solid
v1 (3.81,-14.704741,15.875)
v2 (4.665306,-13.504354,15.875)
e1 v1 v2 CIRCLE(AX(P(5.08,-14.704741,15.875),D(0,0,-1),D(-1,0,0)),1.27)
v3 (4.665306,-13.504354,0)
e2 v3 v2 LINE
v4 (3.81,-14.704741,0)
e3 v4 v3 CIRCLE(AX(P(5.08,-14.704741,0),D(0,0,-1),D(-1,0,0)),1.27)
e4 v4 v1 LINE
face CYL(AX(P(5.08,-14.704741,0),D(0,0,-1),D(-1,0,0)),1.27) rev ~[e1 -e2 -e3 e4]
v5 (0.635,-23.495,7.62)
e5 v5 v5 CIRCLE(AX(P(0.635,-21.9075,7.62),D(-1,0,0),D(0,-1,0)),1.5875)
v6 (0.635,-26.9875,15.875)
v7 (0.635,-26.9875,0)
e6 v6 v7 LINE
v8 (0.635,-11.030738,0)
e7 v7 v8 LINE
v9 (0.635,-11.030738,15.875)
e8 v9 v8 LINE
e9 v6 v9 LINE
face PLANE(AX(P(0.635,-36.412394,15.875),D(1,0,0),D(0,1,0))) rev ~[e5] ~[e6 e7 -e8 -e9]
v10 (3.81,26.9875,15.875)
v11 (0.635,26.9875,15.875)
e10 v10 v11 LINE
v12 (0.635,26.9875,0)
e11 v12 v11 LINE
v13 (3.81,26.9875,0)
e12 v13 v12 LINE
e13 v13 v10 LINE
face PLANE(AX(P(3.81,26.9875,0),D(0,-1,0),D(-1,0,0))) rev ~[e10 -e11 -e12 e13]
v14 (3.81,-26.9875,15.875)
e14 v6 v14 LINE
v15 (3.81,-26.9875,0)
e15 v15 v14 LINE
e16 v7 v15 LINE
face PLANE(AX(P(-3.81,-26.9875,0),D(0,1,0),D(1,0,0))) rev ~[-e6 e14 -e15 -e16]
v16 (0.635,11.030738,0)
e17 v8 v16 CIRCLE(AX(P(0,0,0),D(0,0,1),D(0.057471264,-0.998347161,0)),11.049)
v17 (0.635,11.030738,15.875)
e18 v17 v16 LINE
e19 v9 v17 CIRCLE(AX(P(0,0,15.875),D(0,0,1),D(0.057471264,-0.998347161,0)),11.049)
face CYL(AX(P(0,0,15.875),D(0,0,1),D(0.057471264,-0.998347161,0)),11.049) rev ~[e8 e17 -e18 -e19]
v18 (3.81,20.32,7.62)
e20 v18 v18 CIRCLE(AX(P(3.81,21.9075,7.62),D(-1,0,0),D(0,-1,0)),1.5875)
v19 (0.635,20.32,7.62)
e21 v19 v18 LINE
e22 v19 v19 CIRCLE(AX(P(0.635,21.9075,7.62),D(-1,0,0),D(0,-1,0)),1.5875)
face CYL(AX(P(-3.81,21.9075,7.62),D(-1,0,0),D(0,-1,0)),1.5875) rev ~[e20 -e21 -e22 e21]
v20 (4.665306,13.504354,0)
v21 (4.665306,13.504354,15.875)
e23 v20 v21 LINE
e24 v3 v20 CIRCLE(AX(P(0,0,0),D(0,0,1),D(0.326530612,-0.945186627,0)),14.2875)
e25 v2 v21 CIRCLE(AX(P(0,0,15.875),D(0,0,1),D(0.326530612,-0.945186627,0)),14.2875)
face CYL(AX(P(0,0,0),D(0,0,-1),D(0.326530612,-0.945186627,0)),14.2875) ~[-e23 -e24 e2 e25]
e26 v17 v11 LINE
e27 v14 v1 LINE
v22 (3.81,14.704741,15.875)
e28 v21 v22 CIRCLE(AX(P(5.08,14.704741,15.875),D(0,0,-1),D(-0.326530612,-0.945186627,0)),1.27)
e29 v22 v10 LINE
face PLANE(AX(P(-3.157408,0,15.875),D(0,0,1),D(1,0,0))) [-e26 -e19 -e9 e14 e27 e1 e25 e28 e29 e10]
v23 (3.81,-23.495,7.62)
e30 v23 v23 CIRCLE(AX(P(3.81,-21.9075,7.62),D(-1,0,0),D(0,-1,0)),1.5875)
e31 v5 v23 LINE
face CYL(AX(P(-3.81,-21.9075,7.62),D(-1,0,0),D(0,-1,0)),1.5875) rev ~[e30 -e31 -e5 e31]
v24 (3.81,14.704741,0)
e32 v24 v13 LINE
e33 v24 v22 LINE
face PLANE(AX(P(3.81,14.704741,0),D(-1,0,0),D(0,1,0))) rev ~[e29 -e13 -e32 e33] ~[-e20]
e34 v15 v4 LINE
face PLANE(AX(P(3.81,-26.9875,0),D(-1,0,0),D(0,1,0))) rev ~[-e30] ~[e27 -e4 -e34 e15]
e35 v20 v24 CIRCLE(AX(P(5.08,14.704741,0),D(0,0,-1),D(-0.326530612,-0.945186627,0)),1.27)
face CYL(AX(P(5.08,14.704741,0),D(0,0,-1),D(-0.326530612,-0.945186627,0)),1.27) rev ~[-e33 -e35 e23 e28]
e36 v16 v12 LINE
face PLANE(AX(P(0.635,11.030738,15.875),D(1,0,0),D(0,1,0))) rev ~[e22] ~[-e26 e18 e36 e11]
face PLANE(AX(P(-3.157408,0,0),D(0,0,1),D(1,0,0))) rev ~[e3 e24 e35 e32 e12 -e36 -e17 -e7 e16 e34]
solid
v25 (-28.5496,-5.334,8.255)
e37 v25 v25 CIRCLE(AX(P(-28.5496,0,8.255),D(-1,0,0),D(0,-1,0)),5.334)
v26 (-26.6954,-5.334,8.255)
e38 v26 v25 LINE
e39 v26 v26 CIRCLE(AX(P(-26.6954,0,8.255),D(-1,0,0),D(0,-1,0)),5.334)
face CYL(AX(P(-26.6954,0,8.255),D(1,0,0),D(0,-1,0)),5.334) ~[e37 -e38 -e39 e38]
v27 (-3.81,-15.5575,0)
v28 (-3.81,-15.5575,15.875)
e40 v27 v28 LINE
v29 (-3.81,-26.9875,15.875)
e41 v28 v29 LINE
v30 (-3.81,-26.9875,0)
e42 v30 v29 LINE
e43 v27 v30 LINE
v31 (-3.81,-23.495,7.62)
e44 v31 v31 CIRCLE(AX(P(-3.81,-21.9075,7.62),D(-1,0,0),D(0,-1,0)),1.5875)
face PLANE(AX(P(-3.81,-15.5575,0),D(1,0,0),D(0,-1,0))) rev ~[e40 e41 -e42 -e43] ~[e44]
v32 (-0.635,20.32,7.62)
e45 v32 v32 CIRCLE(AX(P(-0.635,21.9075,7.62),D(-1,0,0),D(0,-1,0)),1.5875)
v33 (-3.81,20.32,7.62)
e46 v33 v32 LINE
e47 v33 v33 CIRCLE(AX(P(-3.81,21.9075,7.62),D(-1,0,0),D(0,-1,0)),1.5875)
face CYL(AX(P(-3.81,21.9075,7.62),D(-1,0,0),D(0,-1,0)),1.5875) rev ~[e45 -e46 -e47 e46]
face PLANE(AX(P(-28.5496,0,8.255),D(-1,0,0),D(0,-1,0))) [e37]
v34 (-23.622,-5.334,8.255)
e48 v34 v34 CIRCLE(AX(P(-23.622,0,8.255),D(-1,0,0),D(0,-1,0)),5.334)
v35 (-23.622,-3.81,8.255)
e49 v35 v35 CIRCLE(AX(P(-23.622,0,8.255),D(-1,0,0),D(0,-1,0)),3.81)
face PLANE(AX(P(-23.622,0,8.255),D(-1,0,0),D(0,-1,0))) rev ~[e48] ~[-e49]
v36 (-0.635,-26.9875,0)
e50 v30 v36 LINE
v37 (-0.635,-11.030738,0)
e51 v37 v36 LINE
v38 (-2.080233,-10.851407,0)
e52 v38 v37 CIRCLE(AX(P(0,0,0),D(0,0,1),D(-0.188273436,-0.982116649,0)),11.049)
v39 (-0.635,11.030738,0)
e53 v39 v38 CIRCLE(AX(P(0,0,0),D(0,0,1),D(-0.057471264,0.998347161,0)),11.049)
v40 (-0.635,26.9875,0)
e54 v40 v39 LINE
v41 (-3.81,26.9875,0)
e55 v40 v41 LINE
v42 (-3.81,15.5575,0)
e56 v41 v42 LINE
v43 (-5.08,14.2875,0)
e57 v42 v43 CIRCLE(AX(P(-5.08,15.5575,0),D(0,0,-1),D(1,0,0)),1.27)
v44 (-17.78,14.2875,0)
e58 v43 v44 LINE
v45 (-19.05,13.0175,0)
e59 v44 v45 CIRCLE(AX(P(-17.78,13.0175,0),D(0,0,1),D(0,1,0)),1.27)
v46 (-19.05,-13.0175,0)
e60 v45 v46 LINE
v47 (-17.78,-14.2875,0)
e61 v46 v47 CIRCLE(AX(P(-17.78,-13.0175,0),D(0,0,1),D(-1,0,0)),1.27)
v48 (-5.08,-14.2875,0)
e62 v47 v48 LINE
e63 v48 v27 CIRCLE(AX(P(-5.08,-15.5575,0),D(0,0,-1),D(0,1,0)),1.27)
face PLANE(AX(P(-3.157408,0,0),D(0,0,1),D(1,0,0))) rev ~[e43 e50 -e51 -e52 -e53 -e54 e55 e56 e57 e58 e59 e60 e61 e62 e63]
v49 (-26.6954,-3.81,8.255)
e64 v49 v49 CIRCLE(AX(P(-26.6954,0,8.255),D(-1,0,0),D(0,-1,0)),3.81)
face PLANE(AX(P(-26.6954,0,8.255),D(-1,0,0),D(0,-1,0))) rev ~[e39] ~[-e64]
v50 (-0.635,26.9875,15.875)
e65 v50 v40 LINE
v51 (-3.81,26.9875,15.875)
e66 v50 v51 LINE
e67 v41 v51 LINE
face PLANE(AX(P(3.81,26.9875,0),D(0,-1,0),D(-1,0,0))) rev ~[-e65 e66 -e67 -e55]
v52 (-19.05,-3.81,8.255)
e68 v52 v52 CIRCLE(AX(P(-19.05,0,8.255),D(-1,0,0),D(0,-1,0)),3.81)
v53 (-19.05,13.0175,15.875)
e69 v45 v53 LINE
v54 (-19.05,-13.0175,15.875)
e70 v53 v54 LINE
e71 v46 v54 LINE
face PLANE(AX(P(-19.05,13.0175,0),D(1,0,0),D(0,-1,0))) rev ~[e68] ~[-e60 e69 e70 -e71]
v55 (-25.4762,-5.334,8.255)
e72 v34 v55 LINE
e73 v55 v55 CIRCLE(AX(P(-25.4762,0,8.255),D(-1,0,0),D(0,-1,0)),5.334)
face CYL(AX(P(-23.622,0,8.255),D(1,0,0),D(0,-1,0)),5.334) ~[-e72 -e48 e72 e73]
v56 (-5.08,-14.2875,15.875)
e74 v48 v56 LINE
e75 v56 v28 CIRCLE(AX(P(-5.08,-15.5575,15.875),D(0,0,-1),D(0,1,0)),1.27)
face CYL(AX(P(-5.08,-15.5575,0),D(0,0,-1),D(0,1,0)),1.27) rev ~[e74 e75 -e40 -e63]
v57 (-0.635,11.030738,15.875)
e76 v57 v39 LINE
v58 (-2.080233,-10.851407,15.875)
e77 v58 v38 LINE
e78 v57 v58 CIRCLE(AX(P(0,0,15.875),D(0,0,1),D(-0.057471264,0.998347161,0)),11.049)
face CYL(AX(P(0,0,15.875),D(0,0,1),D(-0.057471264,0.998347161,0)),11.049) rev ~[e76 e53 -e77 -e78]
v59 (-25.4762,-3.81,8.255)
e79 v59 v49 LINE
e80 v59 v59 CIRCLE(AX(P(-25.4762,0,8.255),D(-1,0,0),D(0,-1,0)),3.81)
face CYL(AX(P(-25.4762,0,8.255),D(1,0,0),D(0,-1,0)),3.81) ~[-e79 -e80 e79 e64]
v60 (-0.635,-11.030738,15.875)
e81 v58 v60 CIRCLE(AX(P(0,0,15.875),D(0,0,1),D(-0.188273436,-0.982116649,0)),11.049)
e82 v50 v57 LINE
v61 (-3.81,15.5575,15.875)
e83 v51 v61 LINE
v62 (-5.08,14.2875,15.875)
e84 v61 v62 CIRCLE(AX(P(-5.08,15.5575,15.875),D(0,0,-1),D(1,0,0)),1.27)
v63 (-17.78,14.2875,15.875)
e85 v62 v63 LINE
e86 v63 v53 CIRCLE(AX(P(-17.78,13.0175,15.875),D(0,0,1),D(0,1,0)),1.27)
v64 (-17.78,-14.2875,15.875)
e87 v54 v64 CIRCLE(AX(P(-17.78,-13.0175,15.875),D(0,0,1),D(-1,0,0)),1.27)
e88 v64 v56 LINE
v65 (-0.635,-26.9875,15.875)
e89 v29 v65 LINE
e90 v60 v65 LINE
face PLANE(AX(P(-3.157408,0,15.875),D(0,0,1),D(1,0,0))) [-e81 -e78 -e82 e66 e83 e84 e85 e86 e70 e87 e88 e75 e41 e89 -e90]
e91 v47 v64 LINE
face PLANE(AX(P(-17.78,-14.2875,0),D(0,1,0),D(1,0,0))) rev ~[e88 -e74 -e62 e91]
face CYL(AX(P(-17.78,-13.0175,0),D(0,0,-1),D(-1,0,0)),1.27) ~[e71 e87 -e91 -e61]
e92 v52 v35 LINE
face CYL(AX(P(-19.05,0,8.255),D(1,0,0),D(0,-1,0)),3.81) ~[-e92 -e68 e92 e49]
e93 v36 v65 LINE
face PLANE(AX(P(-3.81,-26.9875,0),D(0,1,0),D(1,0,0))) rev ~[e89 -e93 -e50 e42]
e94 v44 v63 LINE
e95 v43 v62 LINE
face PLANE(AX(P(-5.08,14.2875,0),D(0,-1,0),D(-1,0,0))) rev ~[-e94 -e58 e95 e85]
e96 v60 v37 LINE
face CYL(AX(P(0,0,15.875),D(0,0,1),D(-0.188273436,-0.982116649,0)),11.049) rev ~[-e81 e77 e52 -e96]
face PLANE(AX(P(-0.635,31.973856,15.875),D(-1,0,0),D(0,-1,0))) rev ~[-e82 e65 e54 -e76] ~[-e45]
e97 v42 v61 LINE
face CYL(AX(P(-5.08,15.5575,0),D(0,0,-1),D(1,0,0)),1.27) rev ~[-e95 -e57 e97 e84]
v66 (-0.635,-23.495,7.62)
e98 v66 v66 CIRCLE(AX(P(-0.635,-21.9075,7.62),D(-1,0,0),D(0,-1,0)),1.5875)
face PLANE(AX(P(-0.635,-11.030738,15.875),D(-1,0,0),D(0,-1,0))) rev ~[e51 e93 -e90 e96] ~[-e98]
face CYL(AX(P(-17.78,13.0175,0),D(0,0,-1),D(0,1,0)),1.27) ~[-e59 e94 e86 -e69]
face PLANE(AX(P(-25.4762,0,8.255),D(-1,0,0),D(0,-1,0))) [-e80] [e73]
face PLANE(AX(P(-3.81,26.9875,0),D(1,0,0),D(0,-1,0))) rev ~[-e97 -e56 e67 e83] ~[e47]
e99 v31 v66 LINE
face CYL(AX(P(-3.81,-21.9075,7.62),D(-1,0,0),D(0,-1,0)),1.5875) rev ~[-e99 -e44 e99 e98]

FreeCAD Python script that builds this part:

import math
import FreeCAD as App
import Part
import Sketcher
from FreeCAD import Vector
Q = App.Units.Quantity

doc = App.newDocument("Part")
body = doc.addObject("PartDesign::Body", "Body")
body.AllowCompound = True

sketch1 = body.newObject("Sketcher::SketchObject", "Sketch")
sketch1.AttachmentSupport = (doc.getObject("XY_Plane"), [""])
sketch1.MapMode = "FlatFace"
sketch1.addGeometry([
    Part.ArcOfCircle(Part.Circle(Vector(-5.1, 15.6, 0), Vector(0, 0, 1), 1.3), math.radians(-90), math.radians(0)),
    Part.LineSegment(Vector(-5.1, 14.3, 0), Vector(-17.8, 14.3, 0)),
    Part.ArcOfCircle(Part.Circle(Vector(-17.8, 13, 0), Vector(0, 0, 1), 1.3), math.radians(90), math.radians(180)),
    Part.LineSegment(Vector(-19.1, 13, 0), Vector(-19.1, -13, 0)),
    Part.ArcOfCircle(Part.Circle(Vector(-17.8, -13, 0), Vector(0, 0, 1), 1.3), math.radians(180), math.radians(270)),
    Part.LineSegment(Vector(-17.8, -14.3, 0), Vector(-5.1, -14.3, 0)),
    Part.ArcOfCircle(Part.Circle(Vector(-5.1, -15.6, 0), Vector(0, 0, 1), 1.3), math.radians(0), math.radians(90)),
    Part.LineSegment(Vector(-3.8, -15.6, 0), Vector(-3.8, -27, 0)),
    Part.LineSegment(Vector(-3.8, -27, 0), Vector(3.8, -27, 0)),
    Part.LineSegment(Vector(3.8, -27, 0), Vector(3.8, -14.7, 0)),
    Part.ArcOfCircle(Part.Circle(Vector(5.1, -14.7, 0), Vector(0, 0, 1), 1.3), math.radians(109), math.radians(180)),
    Part.ArcOfCircle(Part.Circle(Vector(0, 0, 0), Vector(0, 0, 1), 14.3), math.radians(-71), math.radians(71)),
    Part.ArcOfCircle(Part.Circle(Vector(5.1, 14.7, 0), Vector(0, 0, 1), 1.3), math.radians(180), math.radians(251)),
    Part.LineSegment(Vector(3.8, 14.7, 0), Vector(3.8, 27, 0)),
    Part.LineSegment(Vector(3.8, 27, 0), Vector(-3.8, 27, 0)),
    Part.LineSegment(Vector(-3.8, 27, 0), Vector(-3.8, 15.6, 0)),
], False)
sketch1.addConstraint([
    Sketcher.Constraint("Tangent", 0, 1, 1, 1),
    Sketcher.Constraint("Tangent", 1, 2, 2, 1),
    Sketcher.Constraint("Tangent", 2, 2, 3, 1),
    Sketcher.Constraint("Tangent", 3, 2, 4, 1),
    Sketcher.Constraint("Tangent", 4, 2, 5, 1),
    Sketcher.Constraint("Tangent", 5, 2, 6, 2),
    Sketcher.Constraint("Tangent", 6, 1, 7, 1),
    Sketcher.Constraint("Coincident", 7, 2, 8, 1),
    Sketcher.Constraint("Coincident", 8, 2, 9, 1),
    Sketcher.Constraint("Tangent", 9, 2, 10, 2),
    Sketcher.Constraint("Tangent", 10, 1, 11, 1),
    Sketcher.Constraint("Tangent", 11, 2, 12, 2),
    Sketcher.Constraint("Tangent", 12, 1, 13, 1),
    Sketcher.Constraint("Coincident", 13, 2, 14, 1),
    Sketcher.Constraint("Coincident", 14, 2, 15, 1),
    Sketcher.Constraint("Tangent", 15, 2, 0, 2),
    Sketcher.Constraint("Horizontal", 1),
    Sketcher.Constraint("Vertical", 3),
    Sketcher.Constraint("Horizontal", 5),
    Sketcher.Constraint("Vertical", 7),
    Sketcher.Constraint("Horizontal", 8),
    Sketcher.Constraint("Vertical", 9),
    Sketcher.Constraint("Vertical", 13),
    Sketcher.Constraint("Horizontal", 14),
    Sketcher.Constraint("Vertical", 15),
    Sketcher.Constraint("Coincident", 11, 3, -1, 1),
    Sketcher.Constraint("Equal", 0, 2),
    Sketcher.Constraint("Equal", 2, 4),
    Sketcher.Constraint("Equal", 4, 6),
    Sketcher.Constraint("Equal", 6, 10),
    Sketcher.Constraint("Equal", 10, 12),
    Sketcher.Constraint("Symmetric", 7, 2, 13, 2, -1, 1),
    Sketcher.Constraint("Symmetric", 0, 3, 6, 3, -1),
    Sketcher.Constraint("Vertical", 10, 3, 12, 3),
    Sketcher.Constraint("Radius", 0, Q("0.05 in")),
    Sketcher.Constraint("DistanceX", 1, 2, 1, 1, Q("0.5 in")),
    Sketcher.Constraint("DistanceX", 8, 1, 8, 2, Q("0.3 in")),
    Sketcher.Constraint("Radius", 11, Q("0.5625 in")),
    Sketcher.Constraint("DistanceY", 7, 2, 7, 1, Q("0.45 in")),
    Sketcher.Constraint("DistanceY", 3, 2, 3, 1, Q("1.025 in")),
])
pad1 = body.newObject("PartDesign::Pad", "Pad")
pad1.Profile = sketch1
pad1.Length = Q("0.625 in")

sketch2 = body.newObject("Sketcher::SketchObject", "Sketch001")
sketch2.AttachmentSupport = (doc.getObject("YZ_Plane"), [""])
sketch2.MapMode = "FlatFace"
sketch2.AttachmentOffset = App.Placement(Vector(0, 0, -0.75 * 25.4), App.Rotation())
sketch2.addGeometry(Part.Circle(Vector(0, 8.3, 0), Vector(0, 0, 1), 3.8), False)
sketch2.addConstraint([
    Sketcher.Constraint("PointOnObject", 0, 3, -2),
    Sketcher.Constraint("Diameter", 0, Q("0.3 in")),
    Sketcher.Constraint("DistanceY", -1, 1, 0, 3, Q("0.325 in")),
])
pad2 = body.newObject("PartDesign::Pad", "Pad001")
pad2.Profile = sketch2
pad2.Length = Q("0.18 in")
pad2.Reversed = True

sketch3 = body.newObject("Sketcher::SketchObject", "Sketch002")
sketch3.AttachmentSupport = (doc.getObject("YZ_Plane"), [""])
sketch3.MapMode = "FlatFace"
sketch3.AttachmentOffset = App.Placement(Vector(0, 0, -0.93 * 25.4), App.Rotation())
sketch3.addGeometry(Part.Circle(Vector(0, 8, 0), Vector(0, 0, 1), 5), False)
sketch3.addConstraint([
    Sketcher.Constraint("PointOnObject", 0, 3, -2),
    Sketcher.Constraint("Diameter", 0, Q("0.42 in")),
    Sketcher.Constraint("DistanceY", -1, 1, 0, 3, Q("0.325 in")),
])
pad3 = body.newObject("PartDesign::Pad", "Pad002")
pad3.Profile = sketch3
pad3.Length = Q("0.073 in")
pad3.Reversed = True

sketch4 = body.newObject("Sketcher::SketchObject", "Sketch003")
sketch4.AttachmentSupport = (doc.getObject("YZ_Plane"), [""])
sketch4.MapMode = "FlatFace"
sketch4.AttachmentOffset = App.Placement(Vector(0, 0, -1.003 * 25.4), App.Rotation())
sketch4.addGeometry(Part.Circle(Vector(0, 8.3, 0), Vector(0, 0, 1), 3.8), False)
sketch4.addConstraint([
    Sketcher.Constraint("PointOnObject", 0, 3, -2),
    Sketcher.Constraint("Diameter", 0, Q("0.3 in")),
    Sketcher.Constraint("DistanceY", -1, 1, 0, 3, Q("0.325 in")),
])
pad4 = body.newObject("PartDesign::Pad", "Pad003")
pad4.Profile = sketch4
pad4.Length = Q("0.048 in")
pad4.Reversed = True

sketch5 = body.newObject("Sketcher::SketchObject", "Sketch004")
sketch5.AttachmentSupport = (doc.getObject("YZ_Plane"), [""])
sketch5.MapMode = "FlatFace"
sketch5.AttachmentOffset = App.Placement(Vector(0, 0, -1.051 * 25.4), App.Rotation())
sketch5.addGeometry(Part.Circle(Vector(0, 8, 0), Vector(0, 0, 1), 5), False)
sketch5.addConstraint([
    Sketcher.Constraint("PointOnObject", 0, 3, -2),
    Sketcher.Constraint("Diameter", 0, Q("0.42 in")),
    Sketcher.Constraint("DistanceY", -1, 1, 0, 3, Q("0.325 in")),
])
pad5 = body.newObject("PartDesign::Pad", "Pad004")
pad5.Profile = sketch5
pad5.Length = Q("0.073 in")
pad5.Reversed = True

sketch6 = body.newObject("Sketcher::SketchObject", "Sketch005")
sketch6.AttachmentSupport = (doc.getObject("YZ_Plane"), [""])
sketch6.MapMode = "FlatFace"
sketch6.AttachmentOffset = App.Placement(Vector(0, 0, -0.15 * 25.4), App.Rotation())
sketch6.addGeometry(Part.Circle(Vector(21.9, 7.6, 0), Vector(0, 0, 1), 1.6), False)
sketch6.addConstraint([
    Sketcher.Constraint("Diameter", 0, Q("0.125 in")),
    Sketcher.Constraint("DistanceY", -1, 1, 0, 3, Q("0.3 in")),
    Sketcher.Constraint("DistanceX", -1, 1, 0, 3, Q("0.8625 in")),
])
pocket1 = body.newObject("PartDesign::Pocket", "Pocket")
pocket1.Profile = sketch6
pocket1.Length = Q("1 in")
pocket1.Reversed = True

sketch7 = body.newObject("Sketcher::SketchObject", "Sketch006")
sketch7.AttachmentSupport = (doc.getObject("YZ_Plane"), [""])
sketch7.MapMode = "FlatFace"
sketch7.AttachmentOffset = App.Placement(Vector(0, 0, -0.15 * 25.4), App.Rotation())
sketch7.addGeometry(Part.Circle(Vector(-21.9, 7.6, 0), Vector(0, 0, 1), 1.6), False)
sketch7.addConstraint([
    Sketcher.Constraint("Diameter", 0, Q("0.125 in")),
    Sketcher.Constraint("DistanceY", -1, 1, 0, 3, Q("0.3 in")),
    Sketcher.Constraint("DistanceX", 0, 3, -1, 1, Q("0.8625 in")),
])
pocket2 = body.newObject("PartDesign::Pocket", "Pocket001")
pocket2.Profile = sketch7
pocket2.Length = Q("1 in")
pocket2.Reversed = True

sketch8 = body.newObject("Sketcher::SketchObject", "Sketch007")
sketch8.AttachmentSupport = (doc.getObject("XY_Plane"), [""])
sketch8.MapMode = "FlatFace"
sketch8.AttachmentOffset = App.Placement(Vector(0, 0, 0.625 * 25.4), App.Rotation())
sketch8.addGeometry([
    Part.LineSegment(Vector(0.6, 32, 0), Vector(-0.6, 32, 0)),
    Part.LineSegment(Vector(-0.6, 32, 0), Vector(-0.6, 11, 0)),
    Part.ArcOfCircle(Part.Circle(Vector(0, 0, 0), Vector(0, 0, 1), 11), math.radians(93), math.radians(259)),
    Part.ArcOfCircle(Part.Circle(Vector(0, 0, 0), Vector(0, 0, 1), 11), math.radians(-100.85), math.radians(-93.29)),
    Part.LineSegment(Vector(-0.6, -11, 0), Vector(-0.6, -36.4, 0)),
    Part.LineSegment(Vector(-0.6, -36.4, 0), Vector(0.6, -36.4, 0)),
    Part.LineSegment(Vector(0.6, -36.4, 0), Vector(0.6, -11, 0)),
    Part.ArcOfCircle(Part.Circle(Vector(0, 0, 0), Vector(0, 0, 1), 11), math.radians(-87), math.radians(87)),
    Part.LineSegment(Vector(0.6, 11, 0), Vector(0.6, 32, 0)),
], False)
sketch8.addConstraint([
    Sketcher.Constraint("Coincident", 0, 2, 1, 1),
    Sketcher.Constraint("Coincident", 1, 2, 2, 1),
    Sketcher.Constraint("Tangent", 2, 2, 3, 1),
    Sketcher.Constraint("Coincident", 3, 2, 4, 1),
    Sketcher.Constraint("Coincident", 4, 2, 5, 1),
    Sketcher.Constraint("Coincident", 5, 2, 6, 1),
    Sketcher.Constraint("Coincident", 6, 2, 7, 1),
    Sketcher.Constraint("Coincident", 7, 2, 8, 1),
    Sketcher.Constraint("Coincident", 8, 2, 0, 1),
    Sketcher.Constraint("Horizontal", 0),
    Sketcher.Constraint("Vertical", 1),
    Sketcher.Constraint("Vertical", 4),
    Sketcher.Constraint("Horizontal", 5),
    Sketcher.Constraint("Vertical", 6),
    Sketcher.Constraint("Vertical", 8),
    Sketcher.Constraint("Coincident", 2, 3, -1, 1),
    Sketcher.Constraint("Coincident", 7, 3, -1, 1),
    Sketcher.Constraint("Equal", 2, 3),
    Sketcher.Constraint("Equal", 3, 7),
    Sketcher.Constraint("Horizontal", 3, 2, 6, 2),
    Sketcher.Constraint("Horizontal", 1, 2, 7, 2),
    Sketcher.Constraint("Vertical", 1, 2, 3, 2),
    Sketcher.Constraint("Radius", 2, Q("0.435 in")),
    Sketcher.Constraint("DistanceX", 0, 2, 0, 1, Q("0.05 in")),
    Sketcher.Constraint("DistanceY", 1, 2, 1, 1, Q("20.943118 mm")),
    Sketcher.Constraint("DistanceY", 4, 2, 4, 1, Q("25.381657 mm")),
    Sketcher.Constraint("DistanceY", 3, 2, 2, 2, Q("0.179331 mm")),
])
pocket3 = body.newObject("PartDesign::Pocket", "Pocket002")
pocket3.Profile = sketch8
pocket3.Length = Q("1 in")

doc.recompute()
